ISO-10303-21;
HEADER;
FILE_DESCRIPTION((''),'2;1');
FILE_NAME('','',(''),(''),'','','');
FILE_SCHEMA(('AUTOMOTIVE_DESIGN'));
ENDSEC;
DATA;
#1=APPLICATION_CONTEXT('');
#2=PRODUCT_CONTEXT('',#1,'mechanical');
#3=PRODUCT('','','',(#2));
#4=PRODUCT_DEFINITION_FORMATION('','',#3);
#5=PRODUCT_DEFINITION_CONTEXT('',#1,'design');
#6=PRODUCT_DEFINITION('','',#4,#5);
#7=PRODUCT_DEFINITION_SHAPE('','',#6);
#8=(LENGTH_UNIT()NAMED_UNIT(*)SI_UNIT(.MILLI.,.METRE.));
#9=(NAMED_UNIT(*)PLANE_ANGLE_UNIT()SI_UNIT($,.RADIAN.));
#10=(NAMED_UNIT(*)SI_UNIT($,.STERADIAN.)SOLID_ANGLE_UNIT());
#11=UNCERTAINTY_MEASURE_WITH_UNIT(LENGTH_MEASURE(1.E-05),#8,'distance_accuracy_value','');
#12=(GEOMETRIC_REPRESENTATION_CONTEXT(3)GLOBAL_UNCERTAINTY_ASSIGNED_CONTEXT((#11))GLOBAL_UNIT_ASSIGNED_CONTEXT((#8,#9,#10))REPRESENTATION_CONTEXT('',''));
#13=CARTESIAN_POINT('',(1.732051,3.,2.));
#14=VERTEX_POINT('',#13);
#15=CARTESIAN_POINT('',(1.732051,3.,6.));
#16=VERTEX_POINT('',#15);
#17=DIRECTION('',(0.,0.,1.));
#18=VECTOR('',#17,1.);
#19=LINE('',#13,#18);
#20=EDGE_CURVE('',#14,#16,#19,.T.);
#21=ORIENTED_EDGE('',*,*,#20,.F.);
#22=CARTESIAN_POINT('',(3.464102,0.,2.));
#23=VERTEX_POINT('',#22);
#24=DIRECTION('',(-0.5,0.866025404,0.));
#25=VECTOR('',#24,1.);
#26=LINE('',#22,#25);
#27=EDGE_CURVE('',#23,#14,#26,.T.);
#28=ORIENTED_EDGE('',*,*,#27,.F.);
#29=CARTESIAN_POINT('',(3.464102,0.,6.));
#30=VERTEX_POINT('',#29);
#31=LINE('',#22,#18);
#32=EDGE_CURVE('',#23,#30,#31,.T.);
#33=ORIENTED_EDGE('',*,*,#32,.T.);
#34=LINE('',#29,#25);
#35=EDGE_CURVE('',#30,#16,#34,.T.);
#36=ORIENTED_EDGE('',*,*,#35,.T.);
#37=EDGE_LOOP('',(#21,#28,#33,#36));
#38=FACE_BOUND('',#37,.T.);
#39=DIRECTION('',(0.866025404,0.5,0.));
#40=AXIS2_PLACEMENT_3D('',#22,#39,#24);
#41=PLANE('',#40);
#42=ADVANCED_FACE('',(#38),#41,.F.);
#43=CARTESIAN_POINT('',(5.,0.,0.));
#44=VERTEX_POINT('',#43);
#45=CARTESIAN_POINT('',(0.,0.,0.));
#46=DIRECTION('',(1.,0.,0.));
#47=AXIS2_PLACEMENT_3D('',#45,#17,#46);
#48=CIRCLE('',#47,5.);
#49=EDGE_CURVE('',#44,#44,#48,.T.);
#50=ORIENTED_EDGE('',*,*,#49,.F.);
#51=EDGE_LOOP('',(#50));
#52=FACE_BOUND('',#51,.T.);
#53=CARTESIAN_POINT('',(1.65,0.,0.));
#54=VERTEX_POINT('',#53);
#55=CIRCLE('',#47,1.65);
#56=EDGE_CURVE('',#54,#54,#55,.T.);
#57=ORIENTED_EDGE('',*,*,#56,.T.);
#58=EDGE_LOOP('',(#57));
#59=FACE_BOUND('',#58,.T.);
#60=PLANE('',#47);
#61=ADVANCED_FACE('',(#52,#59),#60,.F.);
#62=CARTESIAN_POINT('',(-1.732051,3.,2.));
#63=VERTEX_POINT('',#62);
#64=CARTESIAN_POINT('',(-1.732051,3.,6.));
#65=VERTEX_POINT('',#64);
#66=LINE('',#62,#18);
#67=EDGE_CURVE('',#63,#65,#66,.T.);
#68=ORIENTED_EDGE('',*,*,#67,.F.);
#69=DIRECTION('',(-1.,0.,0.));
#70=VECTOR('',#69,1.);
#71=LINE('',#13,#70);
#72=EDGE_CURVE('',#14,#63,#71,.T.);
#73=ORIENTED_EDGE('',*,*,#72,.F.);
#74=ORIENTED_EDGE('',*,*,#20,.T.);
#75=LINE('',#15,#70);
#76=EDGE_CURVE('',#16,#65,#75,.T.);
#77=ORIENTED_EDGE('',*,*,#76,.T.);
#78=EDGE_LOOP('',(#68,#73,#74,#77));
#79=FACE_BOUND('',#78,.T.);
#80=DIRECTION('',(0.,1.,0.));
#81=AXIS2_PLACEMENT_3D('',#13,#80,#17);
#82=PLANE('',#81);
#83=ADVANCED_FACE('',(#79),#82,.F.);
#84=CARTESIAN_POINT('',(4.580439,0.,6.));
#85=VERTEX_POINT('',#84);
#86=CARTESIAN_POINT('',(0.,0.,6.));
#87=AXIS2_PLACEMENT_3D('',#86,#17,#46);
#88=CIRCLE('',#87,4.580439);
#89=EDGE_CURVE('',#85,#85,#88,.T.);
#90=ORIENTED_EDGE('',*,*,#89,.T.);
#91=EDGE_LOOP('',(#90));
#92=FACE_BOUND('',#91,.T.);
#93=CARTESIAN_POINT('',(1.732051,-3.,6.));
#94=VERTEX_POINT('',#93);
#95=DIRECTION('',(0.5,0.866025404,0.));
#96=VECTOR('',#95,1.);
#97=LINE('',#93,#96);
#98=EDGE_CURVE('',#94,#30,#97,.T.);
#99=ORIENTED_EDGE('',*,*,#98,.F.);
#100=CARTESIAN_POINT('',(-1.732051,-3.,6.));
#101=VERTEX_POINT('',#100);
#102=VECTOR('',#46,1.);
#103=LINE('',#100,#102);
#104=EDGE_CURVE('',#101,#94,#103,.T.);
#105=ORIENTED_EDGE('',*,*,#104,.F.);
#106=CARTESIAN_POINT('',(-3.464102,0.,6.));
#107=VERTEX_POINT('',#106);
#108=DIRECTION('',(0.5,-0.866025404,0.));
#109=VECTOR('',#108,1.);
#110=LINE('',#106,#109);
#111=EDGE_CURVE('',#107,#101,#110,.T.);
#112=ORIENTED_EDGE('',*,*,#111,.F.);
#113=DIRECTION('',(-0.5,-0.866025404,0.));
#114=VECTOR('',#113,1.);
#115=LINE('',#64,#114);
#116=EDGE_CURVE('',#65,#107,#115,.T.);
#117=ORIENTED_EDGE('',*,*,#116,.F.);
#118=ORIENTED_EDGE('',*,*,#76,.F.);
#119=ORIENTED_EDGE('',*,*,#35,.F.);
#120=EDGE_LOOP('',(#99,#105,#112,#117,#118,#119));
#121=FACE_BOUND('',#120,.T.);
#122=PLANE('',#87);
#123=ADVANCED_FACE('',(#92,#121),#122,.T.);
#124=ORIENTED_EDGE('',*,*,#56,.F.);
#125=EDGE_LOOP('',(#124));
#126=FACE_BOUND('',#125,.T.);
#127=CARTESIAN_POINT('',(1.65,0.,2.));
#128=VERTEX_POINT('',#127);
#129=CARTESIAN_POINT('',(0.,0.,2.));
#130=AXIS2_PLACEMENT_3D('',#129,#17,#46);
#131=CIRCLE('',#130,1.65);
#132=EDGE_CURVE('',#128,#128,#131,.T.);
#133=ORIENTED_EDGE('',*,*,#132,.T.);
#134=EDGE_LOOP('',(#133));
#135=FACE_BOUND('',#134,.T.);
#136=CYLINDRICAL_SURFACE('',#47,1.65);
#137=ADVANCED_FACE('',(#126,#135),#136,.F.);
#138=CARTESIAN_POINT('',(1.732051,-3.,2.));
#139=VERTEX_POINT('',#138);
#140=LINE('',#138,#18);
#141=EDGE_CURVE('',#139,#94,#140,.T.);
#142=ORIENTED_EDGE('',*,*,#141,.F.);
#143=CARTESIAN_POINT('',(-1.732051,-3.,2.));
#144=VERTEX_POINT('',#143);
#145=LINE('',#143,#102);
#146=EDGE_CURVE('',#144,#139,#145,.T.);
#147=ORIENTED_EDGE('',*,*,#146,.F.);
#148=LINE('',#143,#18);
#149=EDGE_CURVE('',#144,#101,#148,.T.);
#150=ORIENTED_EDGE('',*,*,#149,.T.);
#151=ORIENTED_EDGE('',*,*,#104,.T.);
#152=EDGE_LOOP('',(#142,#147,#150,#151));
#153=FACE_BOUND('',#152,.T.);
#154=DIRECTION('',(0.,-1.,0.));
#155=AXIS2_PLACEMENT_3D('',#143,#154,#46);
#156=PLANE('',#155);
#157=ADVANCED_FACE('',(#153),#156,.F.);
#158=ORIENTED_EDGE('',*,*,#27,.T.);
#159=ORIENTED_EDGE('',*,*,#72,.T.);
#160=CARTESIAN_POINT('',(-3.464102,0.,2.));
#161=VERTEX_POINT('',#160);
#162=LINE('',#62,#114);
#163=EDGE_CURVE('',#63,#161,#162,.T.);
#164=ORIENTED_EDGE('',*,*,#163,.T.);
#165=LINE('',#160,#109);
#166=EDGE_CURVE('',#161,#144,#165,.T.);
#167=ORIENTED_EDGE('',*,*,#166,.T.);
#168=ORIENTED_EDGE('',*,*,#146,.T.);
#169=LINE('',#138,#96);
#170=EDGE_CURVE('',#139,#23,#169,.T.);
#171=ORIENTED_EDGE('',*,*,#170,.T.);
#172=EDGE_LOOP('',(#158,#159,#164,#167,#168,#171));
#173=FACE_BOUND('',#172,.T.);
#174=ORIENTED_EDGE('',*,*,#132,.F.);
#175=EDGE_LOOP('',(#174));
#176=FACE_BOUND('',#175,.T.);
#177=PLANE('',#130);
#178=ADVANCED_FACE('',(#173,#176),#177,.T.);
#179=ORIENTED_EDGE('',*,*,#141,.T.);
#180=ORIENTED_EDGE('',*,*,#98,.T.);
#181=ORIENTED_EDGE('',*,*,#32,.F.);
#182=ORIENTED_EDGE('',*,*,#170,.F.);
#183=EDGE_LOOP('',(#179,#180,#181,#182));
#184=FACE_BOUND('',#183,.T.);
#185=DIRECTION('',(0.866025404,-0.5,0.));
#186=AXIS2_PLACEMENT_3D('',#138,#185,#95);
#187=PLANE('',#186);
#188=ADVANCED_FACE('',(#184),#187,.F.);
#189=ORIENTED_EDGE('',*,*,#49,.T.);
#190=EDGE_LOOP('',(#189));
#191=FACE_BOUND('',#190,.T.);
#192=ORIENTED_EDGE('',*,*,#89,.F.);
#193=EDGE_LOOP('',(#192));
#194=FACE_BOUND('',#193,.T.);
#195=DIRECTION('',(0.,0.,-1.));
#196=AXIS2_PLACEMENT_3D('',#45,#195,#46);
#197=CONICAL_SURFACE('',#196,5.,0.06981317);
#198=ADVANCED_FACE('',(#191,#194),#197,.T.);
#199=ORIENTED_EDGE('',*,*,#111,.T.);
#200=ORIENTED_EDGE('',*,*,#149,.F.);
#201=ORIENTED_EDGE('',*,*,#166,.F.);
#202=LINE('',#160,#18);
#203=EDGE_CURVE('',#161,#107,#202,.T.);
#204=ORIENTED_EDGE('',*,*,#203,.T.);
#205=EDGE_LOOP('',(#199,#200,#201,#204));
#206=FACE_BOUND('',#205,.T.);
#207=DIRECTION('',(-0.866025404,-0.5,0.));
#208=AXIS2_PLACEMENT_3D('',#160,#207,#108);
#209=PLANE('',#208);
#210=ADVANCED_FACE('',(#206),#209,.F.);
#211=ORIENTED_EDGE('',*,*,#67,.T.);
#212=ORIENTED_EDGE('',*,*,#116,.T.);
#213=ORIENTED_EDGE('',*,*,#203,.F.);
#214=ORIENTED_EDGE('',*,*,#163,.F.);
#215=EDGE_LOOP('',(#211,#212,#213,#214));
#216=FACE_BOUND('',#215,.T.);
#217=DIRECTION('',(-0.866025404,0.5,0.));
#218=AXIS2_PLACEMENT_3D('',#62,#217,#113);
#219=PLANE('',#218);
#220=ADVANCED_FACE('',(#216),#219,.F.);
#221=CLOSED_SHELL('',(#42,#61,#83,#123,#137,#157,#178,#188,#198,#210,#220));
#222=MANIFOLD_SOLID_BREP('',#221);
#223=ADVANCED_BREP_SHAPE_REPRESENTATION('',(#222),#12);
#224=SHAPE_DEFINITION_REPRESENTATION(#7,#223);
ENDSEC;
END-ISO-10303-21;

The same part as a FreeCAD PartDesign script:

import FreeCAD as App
import Part
import Sketcher
from FreeCAD import Vector
Q = App.Units.Quantity


def add_polygon(sketch, points):
    """Adds a closed chain of lines whose ends are joined by coincident constraints."""
    first, n = sketch.GeometryCount, len(points)
    for a, b in zip(points, points[1:] + points[:1]):
        sketch.addGeometry(Part.LineSegment(App.Vector(*a, 0), App.Vector(*b, 0)), False)
    for i in range(n):
        sketch.addConstraint(Sketcher.Constraint("Coincident", first + i, 2, first + (i + 1) % n, 1))

doc = App.newDocument("Part")
body = doc.addObject("PartDesign::Body", "Body")

# Sketch on XY plane
sketch1 = body.newObject("Sketcher::SketchObject", "Sketch")
sketch1.AttachmentSupport = (doc.getObject("XY_Plane"), [""])
sketch1.MapMode = "FlatFace"
sketch1.addGeometry(Part.Circle(Vector(0, 0, 0), Vector(0, 0, 1), 5), False)
sketch1.addConstraint(Sketcher.Constraint("Coincident", 0, 3, -1, 1))
sketch1.addConstraint(Sketcher.Constraint("Diameter", 0, 10.0))
pad1 = body.newObject("PartDesign::Pad", "Pad")
pad1.Profile = sketch1
pad1.Length = 6
pad1.TaperAngle = -4

# Sketch on XY plane
sketch2 = body.newObject("Sketcher::SketchObject", "Sketch001")
sketch2.AttachmentSupport = (doc.getObject("XY_Plane"), [""])
sketch2.MapMode = "FlatFace"
sketch2.AttachmentOffset = App.Placement(Vector(0, 0, 6), App.Rotation())
add_polygon(sketch2, [(1.7, 3), (-1.7, 3), (-3.5, 0), (-1.7, -3), (1.7, -3), (3.5, 0)])  # lines 0-5
sketch2.addConstraint(Sketcher.Constraint("Horizontal", 0))
sketch2.addConstraint(Sketcher.Constraint("Horizontal", 3))
sketch2.addConstraint(Sketcher.Constraint("Symmetric", 0, 2, 3, 2, -1, 1))
sketch2.addConstraint(Sketcher.Constraint("Symmetric", 1, 2, 4, 2, -1, 1))
sketch2.addConstraint(Sketcher.Constraint("PointOnObject", 1, 2, -1))
sketch2.addConstraint(Sketcher.Constraint("Parallel", 2, 5))
sketch2.addConstraint(Sketcher.Constraint("Vertical", 0, 2, 2, 2))
sketch2.addConstraint(Sketcher.Constraint("Angle", 1, Q("-120 deg")))
sketch2.addConstraint(Sketcher.Constraint("DistanceY", -1, 1, 0, 2, 3.0))
sketch2.addConstraint(Sketcher.Constraint("DistanceX", 0, 2, 0, 1, 3.464102))
pocket1 = body.newObject("PartDesign::Pocket", "Pocket")
pocket1.Profile = sketch2
pocket1.Length = 4

# Sketch on XY plane
sketch3 = body.newObject("Sketcher::SketchObject", "Sketch002")
sketch3.AttachmentSupport = (doc.getObject("XY_Plane"), [""])
sketch3.MapMode = "FlatFace"
sketch3.AttachmentOffset = App.Placement(Vector(0, 0, 2), App.Rotation())
sketch3.addGeometry(Part.Circle(Vector(0, 0, 0), Vector(0, 0, 1), 1.6), False)
sketch3.addConstraint(Sketcher.Constraint("Coincident", 0, 3, -1, 1))
sketch3.addConstraint(Sketcher.Constraint("Diameter", 0, 3.3))
pocket2 = body.newObject("PartDesign::Pocket", "Pocket001")
pocket2.Profile = sketch3
pocket2.Type = "ThroughAll"

doc.recompute()
